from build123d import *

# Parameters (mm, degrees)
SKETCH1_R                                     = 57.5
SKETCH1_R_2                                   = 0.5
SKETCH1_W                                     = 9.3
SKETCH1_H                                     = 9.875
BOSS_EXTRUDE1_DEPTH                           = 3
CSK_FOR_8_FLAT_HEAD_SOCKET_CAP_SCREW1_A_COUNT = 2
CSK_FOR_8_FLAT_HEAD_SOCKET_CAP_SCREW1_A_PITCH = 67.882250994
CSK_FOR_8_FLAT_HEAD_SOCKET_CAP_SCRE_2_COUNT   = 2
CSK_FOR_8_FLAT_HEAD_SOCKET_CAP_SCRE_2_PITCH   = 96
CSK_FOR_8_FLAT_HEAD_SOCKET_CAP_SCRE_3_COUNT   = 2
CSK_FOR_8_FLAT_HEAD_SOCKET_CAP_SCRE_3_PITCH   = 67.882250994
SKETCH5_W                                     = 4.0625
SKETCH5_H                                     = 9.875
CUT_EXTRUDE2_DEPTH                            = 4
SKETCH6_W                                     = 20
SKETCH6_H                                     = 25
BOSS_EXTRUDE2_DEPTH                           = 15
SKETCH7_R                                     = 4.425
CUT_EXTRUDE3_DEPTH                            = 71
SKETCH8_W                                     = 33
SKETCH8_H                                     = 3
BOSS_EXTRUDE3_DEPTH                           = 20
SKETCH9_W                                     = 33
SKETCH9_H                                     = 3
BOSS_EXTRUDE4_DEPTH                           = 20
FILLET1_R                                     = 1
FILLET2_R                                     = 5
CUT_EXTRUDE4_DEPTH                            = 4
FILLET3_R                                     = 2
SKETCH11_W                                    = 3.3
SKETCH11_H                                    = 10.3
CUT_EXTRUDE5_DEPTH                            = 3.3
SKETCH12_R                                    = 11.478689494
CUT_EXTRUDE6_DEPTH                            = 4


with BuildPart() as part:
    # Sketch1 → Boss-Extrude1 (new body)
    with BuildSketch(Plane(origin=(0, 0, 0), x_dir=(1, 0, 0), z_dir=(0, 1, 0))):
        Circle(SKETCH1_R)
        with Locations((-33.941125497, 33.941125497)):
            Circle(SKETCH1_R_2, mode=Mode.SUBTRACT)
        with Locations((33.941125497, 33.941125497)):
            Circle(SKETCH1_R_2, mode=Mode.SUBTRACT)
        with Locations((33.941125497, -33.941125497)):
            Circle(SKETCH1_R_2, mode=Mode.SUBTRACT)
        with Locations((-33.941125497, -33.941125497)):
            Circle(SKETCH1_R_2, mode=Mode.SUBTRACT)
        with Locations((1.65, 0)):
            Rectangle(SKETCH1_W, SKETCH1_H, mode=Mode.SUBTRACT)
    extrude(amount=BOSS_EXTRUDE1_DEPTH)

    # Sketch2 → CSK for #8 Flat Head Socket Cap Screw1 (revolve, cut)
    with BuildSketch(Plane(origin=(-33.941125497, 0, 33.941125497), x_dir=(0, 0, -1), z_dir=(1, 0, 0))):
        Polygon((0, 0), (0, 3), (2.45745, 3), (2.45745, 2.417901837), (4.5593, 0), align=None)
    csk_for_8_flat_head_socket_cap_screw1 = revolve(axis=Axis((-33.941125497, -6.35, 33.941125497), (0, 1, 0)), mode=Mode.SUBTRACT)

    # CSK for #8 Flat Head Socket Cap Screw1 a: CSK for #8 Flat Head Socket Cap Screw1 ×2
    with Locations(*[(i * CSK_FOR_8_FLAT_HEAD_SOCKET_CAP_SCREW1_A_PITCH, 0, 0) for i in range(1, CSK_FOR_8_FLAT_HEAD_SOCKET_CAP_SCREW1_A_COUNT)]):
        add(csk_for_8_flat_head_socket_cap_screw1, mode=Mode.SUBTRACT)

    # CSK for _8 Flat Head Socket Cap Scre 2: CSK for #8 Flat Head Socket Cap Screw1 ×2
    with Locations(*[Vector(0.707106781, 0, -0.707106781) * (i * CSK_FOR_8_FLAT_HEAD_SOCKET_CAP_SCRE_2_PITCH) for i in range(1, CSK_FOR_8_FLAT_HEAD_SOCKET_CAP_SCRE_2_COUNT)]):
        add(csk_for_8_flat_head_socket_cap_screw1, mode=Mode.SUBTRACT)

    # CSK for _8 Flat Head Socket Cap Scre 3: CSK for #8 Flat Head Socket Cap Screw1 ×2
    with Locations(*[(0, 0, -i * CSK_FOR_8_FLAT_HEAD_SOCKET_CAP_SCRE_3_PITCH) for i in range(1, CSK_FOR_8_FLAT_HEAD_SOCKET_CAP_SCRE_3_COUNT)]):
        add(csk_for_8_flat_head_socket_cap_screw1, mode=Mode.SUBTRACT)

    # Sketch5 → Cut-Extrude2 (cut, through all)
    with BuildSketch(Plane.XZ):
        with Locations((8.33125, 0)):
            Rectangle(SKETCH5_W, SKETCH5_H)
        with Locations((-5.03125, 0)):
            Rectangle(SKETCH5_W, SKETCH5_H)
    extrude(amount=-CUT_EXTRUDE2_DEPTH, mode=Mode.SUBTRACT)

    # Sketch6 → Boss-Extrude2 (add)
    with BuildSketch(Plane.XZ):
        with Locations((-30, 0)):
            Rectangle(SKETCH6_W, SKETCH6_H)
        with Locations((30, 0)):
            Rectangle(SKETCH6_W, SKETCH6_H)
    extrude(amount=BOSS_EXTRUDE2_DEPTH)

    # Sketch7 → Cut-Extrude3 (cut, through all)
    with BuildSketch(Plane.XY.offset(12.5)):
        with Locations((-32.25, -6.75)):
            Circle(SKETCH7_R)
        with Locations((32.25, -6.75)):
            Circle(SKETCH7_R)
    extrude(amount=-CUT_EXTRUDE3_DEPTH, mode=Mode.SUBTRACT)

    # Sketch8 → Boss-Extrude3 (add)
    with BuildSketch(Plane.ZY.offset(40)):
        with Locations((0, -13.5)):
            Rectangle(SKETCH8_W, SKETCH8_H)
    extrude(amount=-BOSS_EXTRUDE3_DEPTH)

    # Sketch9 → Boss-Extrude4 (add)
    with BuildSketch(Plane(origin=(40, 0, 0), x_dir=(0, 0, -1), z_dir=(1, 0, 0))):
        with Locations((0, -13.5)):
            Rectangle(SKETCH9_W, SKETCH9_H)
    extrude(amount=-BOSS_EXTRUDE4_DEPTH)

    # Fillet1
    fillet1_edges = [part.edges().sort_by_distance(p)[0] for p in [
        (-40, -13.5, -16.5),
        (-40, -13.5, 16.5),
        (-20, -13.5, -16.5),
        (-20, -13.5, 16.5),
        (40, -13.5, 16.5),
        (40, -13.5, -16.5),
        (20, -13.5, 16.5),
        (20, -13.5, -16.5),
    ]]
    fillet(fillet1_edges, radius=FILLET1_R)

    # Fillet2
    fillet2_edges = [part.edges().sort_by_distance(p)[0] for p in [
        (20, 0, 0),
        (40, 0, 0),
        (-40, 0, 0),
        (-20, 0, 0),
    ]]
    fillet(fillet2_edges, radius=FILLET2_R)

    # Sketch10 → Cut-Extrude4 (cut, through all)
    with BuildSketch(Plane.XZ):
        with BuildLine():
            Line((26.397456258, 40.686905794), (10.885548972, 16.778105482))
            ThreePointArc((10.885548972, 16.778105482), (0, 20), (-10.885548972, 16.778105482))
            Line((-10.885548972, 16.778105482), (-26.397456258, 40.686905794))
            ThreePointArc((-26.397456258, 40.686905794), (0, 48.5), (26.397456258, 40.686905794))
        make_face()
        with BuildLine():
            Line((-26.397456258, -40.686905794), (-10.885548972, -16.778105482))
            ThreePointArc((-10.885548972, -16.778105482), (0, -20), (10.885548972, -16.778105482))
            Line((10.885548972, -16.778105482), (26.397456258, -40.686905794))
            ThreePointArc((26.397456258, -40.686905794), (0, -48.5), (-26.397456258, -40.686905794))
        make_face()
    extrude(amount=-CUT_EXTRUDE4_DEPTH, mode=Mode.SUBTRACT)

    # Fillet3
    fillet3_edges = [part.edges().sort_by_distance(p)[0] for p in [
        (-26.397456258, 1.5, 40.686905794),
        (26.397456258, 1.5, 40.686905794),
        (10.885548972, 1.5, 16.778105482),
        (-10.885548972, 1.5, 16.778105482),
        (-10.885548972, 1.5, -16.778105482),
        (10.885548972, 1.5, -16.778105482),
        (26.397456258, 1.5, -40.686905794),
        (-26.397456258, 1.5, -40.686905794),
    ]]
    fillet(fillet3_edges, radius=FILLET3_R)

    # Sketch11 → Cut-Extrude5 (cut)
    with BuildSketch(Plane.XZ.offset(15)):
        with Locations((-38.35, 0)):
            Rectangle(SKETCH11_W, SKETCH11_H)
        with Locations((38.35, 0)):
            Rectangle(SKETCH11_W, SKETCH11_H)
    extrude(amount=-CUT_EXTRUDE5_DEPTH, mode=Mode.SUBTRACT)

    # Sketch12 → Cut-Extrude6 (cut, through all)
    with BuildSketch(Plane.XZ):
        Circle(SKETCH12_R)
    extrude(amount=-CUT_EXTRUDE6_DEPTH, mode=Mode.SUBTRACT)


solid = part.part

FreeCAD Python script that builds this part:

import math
import FreeCAD as App
import Part
import Sketcher
from FreeCAD import Vector
Q = App.Units.Quantity


def edges_at(feature, points):
    """Names of the edges that pass closest to the given points."""
    edges = feature.Shape.Edges
    near = lambda p: min(range(len(edges)), key=lambda i: edges[i].distToShape(Part.Vertex(*p))[0])
    return sorted({f"Edge{near(p) + 1}" for p in points})

doc = App.newDocument("Part")
body = doc.addObject("PartDesign::Body", "Body")

# Sketch on XZ plane
sketch1 = doc.addObject("Sketcher::SketchObject", "Sketch")
body.addObject(sketch1)
sketch1.AttachmentSupport = (doc.XZ_Plane, [""])
sketch1.MapMode = "FlatFace"
sketch1.addGeometry(Part.Circle(Vector(0, 0, 0), Vector(0, 0, 1), 57.5), False)
sketch1.addGeometry(Part.Circle(Vector(-33.941125, 33.941125, 0), Vector(0, 0, 1), 0.5), False)
sketch1.addGeometry(Part.Circle(Vector(33.941125, 33.941125, 0), Vector(0, 0, 1), 0.5), False)
sketch1.addGeometry(Part.Circle(Vector(-33.941125, -33.941125, 0), Vector(0, 0, 1), 0.5), False)
sketch1.addGeometry(Part.LineSegment(Vector(6.3, 4.9375, 0), Vector(-3, 4.9375, 0)), False)
sketch1.addGeometry(Part.LineSegment(Vector(-3, 4.9375, 0), Vector(-3, -4.9375, 0)), False)
sketch1.addGeometry(Part.LineSegment(Vector(-3, -4.9375, 0), Vector(6.3, -4.9375, 0)), False)
sketch1.addGeometry(Part.LineSegment(Vector(6.3, -4.9375, 0), Vector(6.3, 4.9375, 0)), False)
sketch1.addGeometry(Part.Circle(Vector(33.941125, -33.941125, 0), Vector(0, 0, 1), 0.5), False)
sketch1.addConstraint(Sketcher.Constraint("Coincident", 4, 2, 5, 1))
sketch1.addConstraint(Sketcher.Constraint("Coincident", 5, 2, 6, 1))
sketch1.addConstraint(Sketcher.Constraint("Coincident", 6, 2, 7, 1))
sketch1.addConstraint(Sketcher.Constraint("Coincident", 7, 2, 4, 1))
sketch1.addConstraint(Sketcher.Constraint("Horizontal", 4))
sketch1.addConstraint(Sketcher.Constraint("Vertical", 5))
sketch1.addConstraint(Sketcher.Constraint("Horizontal", 6))
sketch1.addConstraint(Sketcher.Constraint("Vertical", 7))
sketch1.addConstraint(Sketcher.Constraint("Coincident", 0, 3, -1, 1))
sketch1.addConstraint(Sketcher.Constraint("Equal", 1, 2))
sketch1.addConstraint(Sketcher.Constraint("Equal", 2, 3))
sketch1.addConstraint(Sketcher.Constraint("Equal", 3, 8))
sketch1.addConstraint(Sketcher.Constraint("Symmetric", 2, 3, 3, 3, -1, 1))
sketch1.addConstraint(Sketcher.Constraint("Symmetric", 1, 3, 8, 3, -1, 1))
sketch1.addConstraint(Sketcher.Constraint("Symmetric", 1, 3, 2, 3, -2))
sketch1.addConstraint(Sketcher.Constraint("Diameter", 0, Q("115 mm")))
sketch1.addConstraint(Sketcher.Constraint("Diameter", 1, Q("1 mm")))
sketch1.addConstraint(Sketcher.Constraint("DistanceX", 4, 2, 4, 1, Q("9.3 mm")))
sketch1.addConstraint(Sketcher.Constraint("DistanceX", 4, 2, -1, 1, Q("3 mm")))
sketch1.addConstraint(Sketcher.Constraint("DistanceY", 5, 2, 5, 1, Q("9.875 mm")))
sketch1.addConstraint(Sketcher.Constraint("DistanceY", -1, 1, 4, 2, Q("4.9375 mm")))
sketch1.addConstraint(Sketcher.Constraint("DistanceX", 1, 3, 2, 3, Q("67.882251 mm")))
sketch1.addConstraint(Sketcher.Constraint("DistanceY", 3, 3, 1, 3, Q("67.882251 mm")))
pad1 = doc.addObject("PartDesign::Pad", "Pad")
body.addObject(pad1)
pad1.Profile = sketch1
pad1.Length = 3
pad1.Reversed = True

# Sketch on YZ plane
sketch2 = doc.addObject("Sketcher::SketchObject", "Sketch001")
body.addObject(sketch2)
sketch2.AttachmentSupport = (doc.YZ_Plane, [""])
sketch2.MapMode = "FlatFace"
sketch2.AttachmentOffset = App.Placement(Vector(0, 0, -33.941125), App.Rotation())
sketch2.addGeometry(Part.LineSegment(Vector(3, 33.941125, 0), Vector(0, 33.941125, 0)), False)
sketch2.addGeometry(Part.LineSegment(Vector(0, 33.941125, 0), Vector(0, 29.381825, 0)), False)
sketch2.addGeometry(Part.LineSegment(Vector(0, 29.381825, 0), Vector(2.417902, 31.483675, 0)), False)
sketch2.addGeometry(Part.LineSegment(Vector(2.417902, 31.483675, 0), Vector(3, 31.483675, 0)), False)
sketch2.addGeometry(Part.LineSegment(Vector(3, 31.483675, 0), Vector(3, 33.941125, 0)), False)
sketch2.addGeometry(Part.LineSegment(Vector(0, 33.941125, 0), Vector(3, 33.941125, 0)), True)  # axis
sketch2.addConstraint(Sketcher.Constraint("Coincident", 0, 2, 1, 1))
sketch2.addConstraint(Sketcher.Constraint("Coincident", 1, 2, 2, 1))
sketch2.addConstraint(Sketcher.Constraint("Coincident", 2, 2, 3, 1))
sketch2.addConstraint(Sketcher.Constraint("Coincident", 3, 2, 4, 1))
sketch2.addConstraint(Sketcher.Constraint("Coincident", 4, 2, 0, 1))
sketch2.addConstraint(Sketcher.Constraint("Horizontal", 0))
sketch2.addConstraint(Sketcher.Constraint("Vertical", 1))
sketch2.addConstraint(Sketcher.Constraint("Horizontal", 3))
sketch2.addConstraint(Sketcher.Constraint("Vertical", 4))
sketch2.addConstraint(Sketcher.Constraint("Horizontal", 5))
sketch2.addConstraint(Sketcher.Constraint("Coincident", 5, 1, 0, 2))
sketch2.addConstraint(Sketcher.Constraint("PointOnObject", 0, 2, -2))
sketch2.addConstraint(Sketcher.Constraint("Vertical", 3, 2, 5, 2))
sketch2.addConstraint(Sketcher.Constraint("DistanceX", 0, 2, 0, 1, Q("3 mm")))
sketch2.addConstraint(Sketcher.Constraint("Angle", 2, Q("41 deg")))
sketch2.addConstraint(Sketcher.Constraint("DistanceX", 3, 1, 3, 2, Q("0.582098 mm")))
sketch2.addConstraint(Sketcher.Constraint("DistanceY", 1, 2, 1, 1, Q("4.5593 mm")))
sketch2.addConstraint(Sketcher.Constraint("DistanceY", -1, 1, 0, 2, Q("33.941125 mm")))
groove = doc.addObject("PartDesign::Groove", "Groove")
body.addObject(groove)
groove.Profile = sketch2
groove.ReferenceAxis = (sketch2, ["Axis0"])
groove.Angle = 360
doc.recompute()

linearpattern = doc.addObject("PartDesign::LinearPattern", "LinearPattern")
body.addObject(linearpattern)
linearpattern.Originals = [groove]
linearpattern.Direction = (doc.X_Axis, [""])
linearpattern.Mode = "offset"
linearpattern.Offset = 67.882251
linearpattern.Occurrences = 2
body.Tip = linearpattern
doc.recompute()

datumline = doc.addObject("PartDesign::Line", "DatumLine")
body.addObject(datumline)
datumline.Placement = App.Placement(Vector(0, 0, 0), App.Rotation(Vector(0, 0, 1), Vector(0.707106781, 0, -0.707106781)))
linearpattern2 = doc.addObject("PartDesign::LinearPattern", "LinearPattern001")
body.addObject(linearpattern2)
linearpattern2.Originals = [groove]
linearpattern2.Direction = (datumline, [""])
linearpattern2.Mode = "offset"
linearpattern2.Offset = 96
linearpattern2.Occurrences = 2
body.Tip = linearpattern2
doc.recompute()

linearpattern3 = doc.addObject("PartDesign::LinearPattern", "LinearPattern002")
body.addObject(linearpattern3)
linearpattern3.Originals = [groove]
linearpattern3.Direction = (doc.Z_Axis, [""])
linearpattern3.Mode = "offset"
linearpattern3.Offset = 67.882251
linearpattern3.Occurrences = 2
linearpattern3.Reversed = True
body.Tip = linearpattern3

# Sketch on XZ plane
sketch3 = doc.addObject("Sketcher::SketchObject", "Sketch002")
body.addObject(sketch3)
sketch3.AttachmentSupport = (doc.XZ_Plane, [""])
sketch3.MapMode = "FlatFace"
sketch3.addGeometry(Part.LineSegment(Vector(6.3, 4.9375, 0), Vector(6.3, -4.9375, 0)), False)
sketch3.addGeometry(Part.LineSegment(Vector(6.3, -4.9375, 0), Vector(10.3625, -4.9375, 0)), False)
sketch3.addGeometry(Part.LineSegment(Vector(10.3625, -4.9375, 0), Vector(10.3625, 4.9375, 0)), False)
sketch3.addGeometry(Part.LineSegment(Vector(10.3625, 4.9375, 0), Vector(6.3, 4.9375, 0)), False)
sketch3.addGeometry(Part.LineSegment(Vector(-7.0625, 4.9375, 0), Vector(-7.0625, -4.9375, 0)), False)
sketch3.addGeometry(Part.LineSegment(Vector(-7.0625, -4.9375, 0), Vector(-3, -4.9375, 0)), False)
sketch3.addGeometry(Part.LineSegment(Vector(-3, -4.9375, 0), Vector(-3, 4.9375, 0)), False)
sketch3.addGeometry(Part.LineSegment(Vector(-3, 4.9375, 0), Vector(-7.0625, 4.9375, 0)), False)
sketch3.addConstraint(Sketcher.Constraint("Coincident", 0, 2, 1, 1))
sketch3.addConstraint(Sketcher.Constraint("Coincident", 1, 2, 2, 1))
sketch3.addConstraint(Sketcher.Constraint("Coincident", 2, 2, 3, 1))
sketch3.addConstraint(Sketcher.Constraint("Coincident", 3, 2, 0, 1))
sketch3.addConstraint(Sketcher.Constraint("Coincident", 4, 2, 5, 1))
sketch3.addConstraint(Sketcher.Constraint("Coincident", 5, 2, 6, 1))
sketch3.addConstraint(Sketcher.Constraint("Coincident", 6, 2, 7, 1))
sketch3.addConstraint(Sketcher.Constraint("Coincident", 7, 2, 4, 1))
sketch3.addConstraint(Sketcher.Constraint("Vertical", 0))
sketch3.addConstraint(Sketcher.Constraint("Horizontal", 1))
sketch3.addConstraint(Sketcher.Constraint("Vertical", 2))
sketch3.addConstraint(Sketcher.Constraint("Horizontal", 3))
sketch3.addConstraint(Sketcher.Constraint("Vertical", 4))
sketch3.addConstraint(Sketcher.Constraint("Horizontal", 5))
sketch3.addConstraint(Sketcher.Constraint("Vertical", 6))
sketch3.addConstraint(Sketcher.Constraint("Horizontal", 7))
sketch3.addConstraint(Sketcher.Constraint("Horizontal", 1, 2, 4, 2))
sketch3.addConstraint(Sketcher.Constraint("Horizontal", 3, 2, 6, 2))
sketch3.addConstraint(Sketcher.Constraint("Equal", 3, 5))
sketch3.addConstraint(Sketcher.Constraint("DistanceX", 5, 2, -1, 1, Q("3 mm")))
sketch3.addConstraint(Sketcher.Constraint("DistanceX", -1, 1, 0, 2, Q("6.3 mm")))
sketch3.addConstraint(Sketcher.Constraint("DistanceY", 0, 2, 0, 1, Q("9.875 mm")))
sketch3.addConstraint(Sketcher.Constraint("DistanceX", 1, 1, 1, 2, Q("4.0625 mm")))
sketch3.addConstraint(Sketcher.Constraint("DistanceY", 0, 2, -1, 1, Q("4.9375 mm")))
pocket1 = doc.addObject("PartDesign::Pocket", "Pocket")
body.addObject(pocket1)
pocket1.Profile = sketch3
pocket1.Type = "ThroughAll"

# Sketch on XZ plane
sketch4 = doc.addObject("Sketcher::SketchObject", "Sketch003")
body.addObject(sketch4)
sketch4.AttachmentSupport = (doc.XZ_Plane, [""])
sketch4.MapMode = "FlatFace"
sketch4.addGeometry(Part.LineSegment(Vector(-40, 12.5, 0), Vector(-40, -12.5, 0)), False)
sketch4.addGeometry(Part.LineSegment(Vector(-40, -12.5, 0), Vector(-20, -12.5, 0)), False)
sketch4.addGeometry(Part.LineSegment(Vector(-20, -12.5, 0), Vector(-20, 12.5, 0)), False)
sketch4.addGeometry(Part.LineSegment(Vector(-20, 12.5, 0), Vector(-40, 12.5, 0)), False)
sketch4.addGeometry(Part.LineSegment(Vector(20, 12.5, 0), Vector(20, -12.5, 0)), False)
sketch4.addGeometry(Part.LineSegment(Vector(20, -12.5, 0), Vector(40, -12.5, 0)), False)
sketch4.addGeometry(Part.LineSegment(Vector(40, -12.5, 0), Vector(40, 12.5, 0)), False)
sketch4.addGeometry(Part.LineSegment(Vector(40, 12.5, 0), Vector(20, 12.5, 0)), False)
sketch4.addConstraint(Sketcher.Constraint("Coincident", 0, 2, 1, 1))
sketch4.addConstraint(Sketcher.Constraint("Coincident", 1, 2, 2, 1))
sketch4.addConstraint(Sketcher.Constraint("Coincident", 2, 2, 3, 1))
sketch4.addConstraint(Sketcher.Constraint("Coincident", 3, 2, 0, 1))
sketch4.addConstraint(Sketcher.Constraint("Coincident", 4, 2, 5, 1))
sketch4.addConstraint(Sketcher.Constraint("Coincident", 5, 2, 6, 1))
sketch4.addConstraint(Sketcher.Constraint("Coincident", 6, 2, 7, 1))
sketch4.addConstraint(Sketcher.Constraint("Coincident", 7, 2, 4, 1))
sketch4.addConstraint(Sketcher.Constraint("Vertical", 0))
sketch4.addConstraint(Sketcher.Constraint("Horizontal", 1))
sketch4.addConstraint(Sketcher.Constraint("Vertical", 2))
sketch4.addConstraint(Sketcher.Constraint("Horizontal", 3))
sketch4.addConstraint(Sketcher.Constraint("Vertical", 4))
sketch4.addConstraint(Sketcher.Constraint("Horizontal", 5))
sketch4.addConstraint(Sketcher.Constraint("Vertical", 6))
sketch4.addConstraint(Sketcher.Constraint("Horizontal", 7))
sketch4.addConstraint(Sketcher.Constraint("Symmetric", 2, 2, 4, 2, -1, 1))
sketch4.addConstraint(Sketcher.Constraint("Symmetric", 0, 2, 6, 2, -1, 1))
sketch4.addConstraint(Sketcher.Constraint("Horizontal", 1, 2, 4, 2))
sketch4.addConstraint(Sketcher.Constraint("DistanceX", 1, 1, 1, 2, Q("20 mm")))
sketch4.addConstraint(Sketcher.Constraint("DistanceY", 0, 2, 0, 1, Q("25 mm")))
sketch4.addConstraint(Sketcher.Constraint("DistanceX", 0, 2, -1, 1, Q("40 mm")))
pad2 = doc.addObject("PartDesign::Pad", "Pad001")
body.addObject(pad2)
pad2.Profile = sketch4
pad2.Length = 15

# Sketch on XY plane
sketch5 = doc.addObject("Sketcher::SketchObject", "Sketch004")
body.addObject(sketch5)
sketch5.AttachmentSupport = (doc.XY_Plane, [""])
sketch5.MapMode = "FlatFace"
sketch5.AttachmentOffset = App.Placement(Vector(0, 0, 12.5), App.Rotation())
sketch5.addGeometry(Part.Circle(Vector(-32.25, -6.75, 0), Vector(0, 0, 1), 4.425), False)
sketch5.addGeometry(Part.Circle(Vector(32.25, -6.75, 0), Vector(0, 0, 1), 4.425), False)
sketch5.addConstraint(Sketcher.Constraint("Equal", 0, 1))
sketch5.addConstraint(Sketcher.Constraint("Symmetric", 0, 3, 1, 3, -2))
sketch5.addConstraint(Sketcher.Constraint("Diameter", 0, Q("8.85 mm")))
sketch5.addConstraint(Sketcher.Constraint("DistanceX", 0, 3, 1, 3, Q("64.5 mm")))
sketch5.addConstraint(Sketcher.Constraint("DistanceY", 0, 3, -1, 1, Q("6.75 mm")))
pocket2 = doc.addObject("PartDesign::Pocket", "Pocket001")
body.addObject(pocket2)
pocket2.Profile = sketch5
pocket2.Type = "ThroughAll"

# Sketch on YZ plane
sketch6 = doc.addObject("Sketcher::SketchObject", "Sketch005")
body.addObject(sketch6)
sketch6.AttachmentSupport = (doc.YZ_Plane, [""])
sketch6.MapMode = "FlatFace"
sketch6.AttachmentOffset = App.Placement(Vector(0, 0, -40), App.Rotation())
sketch6.addGeometry(Part.LineSegment(Vector(-12, -16.5, 0), Vector(-15, -16.5, 0)), False)
sketch6.addGeometry(Part.LineSegment(Vector(-15, -16.5, 0), Vector(-15, 16.5, 0)), False)
sketch6.addGeometry(Part.LineSegment(Vector(-15, 16.5, 0), Vector(-12, 16.5, 0)), False)
sketch6.addGeometry(Part.LineSegment(Vector(-12, 16.5, 0), Vector(-12, -16.5, 0)), False)
sketch6.addConstraint(Sketcher.Constraint("Coincident", 0, 2, 1, 1))
sketch6.addConstraint(Sketcher.Constraint("Coincident", 1, 2, 2, 1))
sketch6.addConstraint(Sketcher.Constraint("Coincident", 2, 2, 3, 1))
sketch6.addConstraint(Sketcher.Constraint("Coincident", 3, 2, 0, 1))
sketch6.addConstraint(Sketcher.Constraint("Horizontal", 0))
sketch6.addConstraint(Sketcher.Constraint("Vertical", 1))
sketch6.addConstraint(Sketcher.Constraint("Horizontal", 2))
sketch6.addConstraint(Sketcher.Constraint("Vertical", 3))
sketch6.addConstraint(Sketcher.Constraint("DistanceX", 0, 2, 0, 1, Q("3 mm")))
sketch6.addConstraint(Sketcher.Constraint("DistanceY", 1, 1, 1, 2, Q("33 mm")))
sketch6.addConstraint(Sketcher.Constraint("DistanceX", 0, 2, -1, 1, Q("15 mm")))
sketch6.addConstraint(Sketcher.Constraint("DistanceY", 0, 2, -1, 1, Q("16.5 mm")))
pad3 = doc.addObject("PartDesign::Pad", "Pad002")
body.addObject(pad3)
pad3.Profile = sketch6
pad3.Length = 20

# Sketch on YZ plane
sketch7 = doc.addObject("Sketcher::SketchObject", "Sketch006")
body.addObject(sketch7)
sketch7.AttachmentSupport = (doc.YZ_Plane, [""])
sketch7.MapMode = "FlatFace"
sketch7.AttachmentOffset = App.Placement(Vector(0, 0, 40), App.Rotation())
sketch7.addGeometry(Part.LineSegment(Vector(-12, 16.5, 0), Vector(-15, 16.5, 0)), False)
sketch7.addGeometry(Part.LineSegment(Vector(-15, 16.5, 0), Vector(-15, -16.5, 0)), False)
sketch7.addGeometry(Part.LineSegment(Vector(-15, -16.5, 0), Vector(-12, -16.5, 0)), False)
sketch7.addGeometry(Part.LineSegment(Vector(-12, -16.5, 0), Vector(-12, 16.5, 0)), False)
sketch7.addConstraint(Sketcher.Constraint("Coincident", 0, 2, 1, 1))
sketch7.addConstraint(Sketcher.Constraint("Coincident", 1, 2, 2, 1))
sketch7.addConstraint(Sketcher.Constraint("Coincident", 2, 2, 3, 1))
sketch7.addConstraint(Sketcher.Constraint("Coincident", 3, 2, 0, 1))
sketch7.addConstraint(Sketcher.Constraint("Horizontal", 0))
sketch7.addConstraint(Sketcher.Constraint("Vertical", 1))
sketch7.addConstraint(Sketcher.Constraint("Horizontal", 2))
sketch7.addConstraint(Sketcher.Constraint("Vertical", 3))
sketch7.addConstraint(Sketcher.Constraint("DistanceX", 0, 2, 0, 1, Q("3 mm")))
sketch7.addConstraint(Sketcher.Constraint("DistanceY", 1, 2, 1, 1, Q("33 mm")))
sketch7.addConstraint(Sketcher.Constraint("DistanceX", 0, 2, -1, 1, Q("15 mm")))
sketch7.addConstraint(Sketcher.Constraint("DistanceY", -1, 1, 0, 2, Q("16.5 mm")))
pad4 = doc.addObject("PartDesign::Pad", "Pad003")
body.addObject(pad4)
pad4.Profile = sketch7
pad4.Length = 20
pad4.Reversed = True
doc.recompute()

fillet = doc.addObject("PartDesign::Fillet", "Fillet")
body.addObject(fillet)
fillet.Base = (pad4, edges_at(pad4, [
    (-40, -13.5, -16.5),
    (-40, -13.5, 16.5),
    (-20, -13.5, -16.5),
    (-20, -13.5, 16.5),
    (40, -13.5, 16.5),
    (40, -13.5, -16.5),
    (20, -13.5, 16.5),
    (20, -13.5, -16.5),
]))
fillet.Radius = 1
doc.recompute()

fillet2 = doc.addObject("PartDesign::Fillet", "Fillet001")
body.addObject(fillet2)
fillet2.Base = (fillet, edges_at(fillet, [
    (20, 0, 0),
    (40, 0, 0),
    (-40, 0, 0),
    (-20, 0, 0),
]))
fillet2.Radius = 5

# Sketch on XZ plane
sketch8 = doc.addObject("Sketcher::SketchObject", "Sketch007")
body.addObject(sketch8)
sketch8.AttachmentSupport = (doc.XZ_Plane, [""])
sketch8.MapMode = "FlatFace"
sketch8.addGeometry(Part.LineSegment(Vector(10.885549, 16.778105, 0), Vector(26.397456, 40.686906, 0)), False)
sketch8.addGeometry(Part.ArcOfCircle(Part.Circle(Vector(0, 0, 0), Vector(0, 0, 1), 48.5), math.radians(57.024699), math.radians(122.975301)), False)
sketch8.addGeometry(Part.LineSegment(Vector(-26.397456, 40.686906, 0), Vector(-10.885549, 16.778105, 0)), False)
sketch8.addGeometry(Part.ArcOfCircle(Part.Circle(Vector(0, 0, 0), Vector(0, 0, 1), 20), math.radians(57.024699), math.radians(122.975301)), False)
sketch8.addGeometry(Part.LineSegment(Vector(-10.885549, -16.778105, 0), Vector(-26.397456, -40.686906, 0)), False)
sketch8.addGeometry(Part.ArcOfCircle(Part.Circle(Vector(0, 0, 0), Vector(0, 0, 1), 48.5), math.radians(-122.975301), math.radians(-57.024699)), False)
sketch8.addGeometry(Part.LineSegment(Vector(26.397456, -40.686906, 0), Vector(10.885549, -16.778105, 0)), False)
sketch8.addGeometry(Part.ArcOfCircle(Part.Circle(Vector(0, 0, 0), Vector(0, 0, 1), 20), math.radians(-122.975301), math.radians(-57.024699)), False)
sketch8.addConstraint(Sketcher.Constraint("Coincident", 0, 2, 1, 1))
sketch8.addConstraint(Sketcher.Constraint("Coincident", 1, 2, 2, 1))
sketch8.addConstraint(Sketcher.Constraint("Coincident", 2, 2, 3, 2))
sketch8.addConstraint(Sketcher.Constraint("Coincident", 3, 1, 0, 1))
sketch8.addConstraint(Sketcher.Constraint("Coincident", 4, 2, 5, 1))
sketch8.addConstraint(Sketcher.Constraint("Coincident", 5, 2, 6, 1))
sketch8.addConstraint(Sketcher.Constraint("Coincident", 6, 2, 7, 2))
sketch8.addConstraint(Sketcher.Constraint("Coincident", 7, 1, 4, 1))
sketch8.addConstraint(Sketcher.Constraint("Coincident", 1, 3, -1, 1))
sketch8.addConstraint(Sketcher.Constraint("Coincident", 3, 3, -1, 1))
sketch8.addConstraint(Sketcher.Constraint("Coincident", 5, 3, -1, 1))
sketch8.addConstraint(Sketcher.Constraint("Coincident", 7, 3, -1, 1))
sketch8.addConstraint(Sketcher.Constraint("Equal", 1, 5))
sketch8.addConstraint(Sketcher.Constraint("Equal", 3, 7))
sketch8.addConstraint(Sketcher.Constraint("Parallel", 0, 4))
sketch8.addConstraint(Sketcher.Constraint("Parallel", 2, 6))
sketch8.addConstraint(Sketcher.Constraint("Horizontal", 0, 2, 1, 2))
sketch8.addConstraint(Sketcher.Constraint("Horizontal", 2, 2, 3, 1))
sketch8.addConstraint(Sketcher.Constraint("Horizontal", 4, 2, 5, 2))
sketch8.addConstraint(Sketcher.Constraint("Vertical", 1, 2, 4, 2))
sketch8.addConstraint(Sketcher.Constraint("Radius", 3, Q("20 mm")))
sketch8.addConstraint(Sketcher.Constraint("Radius", 1, Q("48.5 mm")))
sketch8.addConstraint(Sketcher.Constraint("DistanceY", 2, 2, 1, 2, Q("23.9088 mm")))
sketch8.addConstraint(Sketcher.Constraint("DistanceX", 2, 2, -1, 1, Q("10.885549 mm")))
pocket3 = doc.addObject("PartDesign::Pocket", "Pocket002")
body.addObject(pocket3)
pocket3.Profile = sketch8
pocket3.Type = "ThroughAll"
doc.recompute()

fillet3 = doc.addObject("PartDesign::Fillet", "Fillet002")
body.addObject(fillet3)
fillet3.Base = (pocket3, edges_at(pocket3, [
    (-26.397, 1.5, 40.687),
    (26.397, 1.5, 40.687),
    (10.886, 1.5, 16.778),
    (-10.886, 1.5, 16.778),
    (-10.886, 1.5, -16.778),
    (10.886, 1.5, -16.778),
    (26.397, 1.5, -40.687),
    (-26.397, 1.5, -40.687),
]))
fillet3.Radius = 2

# Sketch on XZ plane
sketch9 = doc.addObject("Sketcher::SketchObject", "Sketch008")
body.addObject(sketch9)
sketch9.AttachmentSupport = (doc.XZ_Plane, [""])
sketch9.MapMode = "FlatFace"
sketch9.AttachmentOffset = App.Placement(Vector(0, 0, 15), App.Rotation())
sketch9.addGeometry(Part.LineSegment(Vector(-40, 5.15, 0), Vector(-40, -5.15, 0)), False)
sketch9.addGeometry(Part.LineSegment(Vector(-40, -5.15, 0), Vector(-36.7, -5.15, 0)), False)
sketch9.addGeometry(Part.LineSegment(Vector(-36.7, -5.15, 0), Vector(-36.7, 5.15, 0)), False)
sketch9.addGeometry(Part.LineSegment(Vector(-36.7, 5.15, 0), Vector(-40, 5.15, 0)), False)
sketch9.addGeometry(Part.LineSegment(Vector(36.7, 5.15, 0), Vector(36.7, -5.15, 0)), False)
sketch9.addGeometry(Part.LineSegment(Vector(36.7, -5.15, 0), Vector(40, -5.15, 0)), False)
sketch9.addGeometry(Part.LineSegment(Vector(40, -5.15, 0), Vector(40, 5.15, 0)), False)
sketch9.addGeometry(Part.LineSegment(Vector(40, 5.15, 0), Vector(36.7, 5.15, 0)), False)
sketch9.addConstraint(Sketcher.Constraint("Coincident", 0, 2, 1, 1))
sketch9.addConstraint(Sketcher.Constraint("Coincident", 1, 2, 2, 1))
sketch9.addConstraint(Sketcher.Constraint("Coincident", 2, 2, 3, 1))
sketch9.addConstraint(Sketcher.Constraint("Coincident", 3, 2, 0, 1))
sketch9.addConstraint(Sketcher.Constraint("Coincident", 4, 2, 5, 1))
sketch9.addConstraint(Sketcher.Constraint("Coincident", 5, 2, 6, 1))
sketch9.addConstraint(Sketcher.Constraint("Coincident", 6, 2, 7, 1))
sketch9.addConstraint(Sketcher.Constraint("Coincident", 7, 2, 4, 1))
sketch9.addConstraint(Sketcher.Constraint("Vertical", 0))
sketch9.addConstraint(Sketcher.Constraint("Horizontal", 1))
sketch9.addConstraint(Sketcher.Constraint("Vertical", 2))
sketch9.addConstraint(Sketcher.Constraint("Horizontal", 3))
sketch9.addConstraint(Sketcher.Constraint("Vertical", 4))
sketch9.addConstraint(Sketcher.Constraint("Horizontal", 5))
sketch9.addConstraint(Sketcher.Constraint("Vertical", 6))
sketch9.addConstraint(Sketcher.Constraint("Horizontal", 7))
sketch9.addConstraint(Sketcher.Constraint("Symmetric", 2, 2, 4, 2, -1, 1))
sketch9.addConstraint(Sketcher.Constraint("Symmetric", 0, 2, 6, 2, -1, 1))
sketch9.addConstraint(Sketcher.Constraint("Horizontal", 1, 2, 4, 2))
sketch9.addConstraint(Sketcher.Constraint("DistanceX", 1, 1, 1, 2, Q("3.3 mm")))
sketch9.addConstraint(Sketcher.Constraint("DistanceY", 0, 2, 0, 1, Q("10.3 mm")))
sketch9.addConstraint(Sketcher.Constraint("DistanceX", 0, 2, -1, 1, Q("40 mm")))
pocket4 = doc.addObject("PartDesign::Pocket", "Pocket003")
body.addObject(pocket4)
pocket4.Profile = sketch9
pocket4.Length = 3.3

# Sketch on XZ plane
sketch10 = doc.addObject("Sketcher::SketchObject", "Sketch009")
body.addObject(sketch10)
sketch10.AttachmentSupport = (doc.XZ_Plane, [""])
sketch10.MapMode = "FlatFace"
sketch10.addGeometry(Part.Circle(Vector(0, 0, 0), Vector(0, 0, 1), 11.478689), False)
sketch10.addConstraint(Sketcher.Constraint("Coincident", 0, 3, -1, 1))
sketch10.addConstraint(Sketcher.Constraint("Diameter", 0, Q("22.957379 mm")))
pocket5 = doc.addObject("PartDesign::Pocket", "Pocket004")
body.addObject(pocket5)
pocket5.Profile = sketch10
pocket5.Type = "ThroughAll"

doc.recompute()
